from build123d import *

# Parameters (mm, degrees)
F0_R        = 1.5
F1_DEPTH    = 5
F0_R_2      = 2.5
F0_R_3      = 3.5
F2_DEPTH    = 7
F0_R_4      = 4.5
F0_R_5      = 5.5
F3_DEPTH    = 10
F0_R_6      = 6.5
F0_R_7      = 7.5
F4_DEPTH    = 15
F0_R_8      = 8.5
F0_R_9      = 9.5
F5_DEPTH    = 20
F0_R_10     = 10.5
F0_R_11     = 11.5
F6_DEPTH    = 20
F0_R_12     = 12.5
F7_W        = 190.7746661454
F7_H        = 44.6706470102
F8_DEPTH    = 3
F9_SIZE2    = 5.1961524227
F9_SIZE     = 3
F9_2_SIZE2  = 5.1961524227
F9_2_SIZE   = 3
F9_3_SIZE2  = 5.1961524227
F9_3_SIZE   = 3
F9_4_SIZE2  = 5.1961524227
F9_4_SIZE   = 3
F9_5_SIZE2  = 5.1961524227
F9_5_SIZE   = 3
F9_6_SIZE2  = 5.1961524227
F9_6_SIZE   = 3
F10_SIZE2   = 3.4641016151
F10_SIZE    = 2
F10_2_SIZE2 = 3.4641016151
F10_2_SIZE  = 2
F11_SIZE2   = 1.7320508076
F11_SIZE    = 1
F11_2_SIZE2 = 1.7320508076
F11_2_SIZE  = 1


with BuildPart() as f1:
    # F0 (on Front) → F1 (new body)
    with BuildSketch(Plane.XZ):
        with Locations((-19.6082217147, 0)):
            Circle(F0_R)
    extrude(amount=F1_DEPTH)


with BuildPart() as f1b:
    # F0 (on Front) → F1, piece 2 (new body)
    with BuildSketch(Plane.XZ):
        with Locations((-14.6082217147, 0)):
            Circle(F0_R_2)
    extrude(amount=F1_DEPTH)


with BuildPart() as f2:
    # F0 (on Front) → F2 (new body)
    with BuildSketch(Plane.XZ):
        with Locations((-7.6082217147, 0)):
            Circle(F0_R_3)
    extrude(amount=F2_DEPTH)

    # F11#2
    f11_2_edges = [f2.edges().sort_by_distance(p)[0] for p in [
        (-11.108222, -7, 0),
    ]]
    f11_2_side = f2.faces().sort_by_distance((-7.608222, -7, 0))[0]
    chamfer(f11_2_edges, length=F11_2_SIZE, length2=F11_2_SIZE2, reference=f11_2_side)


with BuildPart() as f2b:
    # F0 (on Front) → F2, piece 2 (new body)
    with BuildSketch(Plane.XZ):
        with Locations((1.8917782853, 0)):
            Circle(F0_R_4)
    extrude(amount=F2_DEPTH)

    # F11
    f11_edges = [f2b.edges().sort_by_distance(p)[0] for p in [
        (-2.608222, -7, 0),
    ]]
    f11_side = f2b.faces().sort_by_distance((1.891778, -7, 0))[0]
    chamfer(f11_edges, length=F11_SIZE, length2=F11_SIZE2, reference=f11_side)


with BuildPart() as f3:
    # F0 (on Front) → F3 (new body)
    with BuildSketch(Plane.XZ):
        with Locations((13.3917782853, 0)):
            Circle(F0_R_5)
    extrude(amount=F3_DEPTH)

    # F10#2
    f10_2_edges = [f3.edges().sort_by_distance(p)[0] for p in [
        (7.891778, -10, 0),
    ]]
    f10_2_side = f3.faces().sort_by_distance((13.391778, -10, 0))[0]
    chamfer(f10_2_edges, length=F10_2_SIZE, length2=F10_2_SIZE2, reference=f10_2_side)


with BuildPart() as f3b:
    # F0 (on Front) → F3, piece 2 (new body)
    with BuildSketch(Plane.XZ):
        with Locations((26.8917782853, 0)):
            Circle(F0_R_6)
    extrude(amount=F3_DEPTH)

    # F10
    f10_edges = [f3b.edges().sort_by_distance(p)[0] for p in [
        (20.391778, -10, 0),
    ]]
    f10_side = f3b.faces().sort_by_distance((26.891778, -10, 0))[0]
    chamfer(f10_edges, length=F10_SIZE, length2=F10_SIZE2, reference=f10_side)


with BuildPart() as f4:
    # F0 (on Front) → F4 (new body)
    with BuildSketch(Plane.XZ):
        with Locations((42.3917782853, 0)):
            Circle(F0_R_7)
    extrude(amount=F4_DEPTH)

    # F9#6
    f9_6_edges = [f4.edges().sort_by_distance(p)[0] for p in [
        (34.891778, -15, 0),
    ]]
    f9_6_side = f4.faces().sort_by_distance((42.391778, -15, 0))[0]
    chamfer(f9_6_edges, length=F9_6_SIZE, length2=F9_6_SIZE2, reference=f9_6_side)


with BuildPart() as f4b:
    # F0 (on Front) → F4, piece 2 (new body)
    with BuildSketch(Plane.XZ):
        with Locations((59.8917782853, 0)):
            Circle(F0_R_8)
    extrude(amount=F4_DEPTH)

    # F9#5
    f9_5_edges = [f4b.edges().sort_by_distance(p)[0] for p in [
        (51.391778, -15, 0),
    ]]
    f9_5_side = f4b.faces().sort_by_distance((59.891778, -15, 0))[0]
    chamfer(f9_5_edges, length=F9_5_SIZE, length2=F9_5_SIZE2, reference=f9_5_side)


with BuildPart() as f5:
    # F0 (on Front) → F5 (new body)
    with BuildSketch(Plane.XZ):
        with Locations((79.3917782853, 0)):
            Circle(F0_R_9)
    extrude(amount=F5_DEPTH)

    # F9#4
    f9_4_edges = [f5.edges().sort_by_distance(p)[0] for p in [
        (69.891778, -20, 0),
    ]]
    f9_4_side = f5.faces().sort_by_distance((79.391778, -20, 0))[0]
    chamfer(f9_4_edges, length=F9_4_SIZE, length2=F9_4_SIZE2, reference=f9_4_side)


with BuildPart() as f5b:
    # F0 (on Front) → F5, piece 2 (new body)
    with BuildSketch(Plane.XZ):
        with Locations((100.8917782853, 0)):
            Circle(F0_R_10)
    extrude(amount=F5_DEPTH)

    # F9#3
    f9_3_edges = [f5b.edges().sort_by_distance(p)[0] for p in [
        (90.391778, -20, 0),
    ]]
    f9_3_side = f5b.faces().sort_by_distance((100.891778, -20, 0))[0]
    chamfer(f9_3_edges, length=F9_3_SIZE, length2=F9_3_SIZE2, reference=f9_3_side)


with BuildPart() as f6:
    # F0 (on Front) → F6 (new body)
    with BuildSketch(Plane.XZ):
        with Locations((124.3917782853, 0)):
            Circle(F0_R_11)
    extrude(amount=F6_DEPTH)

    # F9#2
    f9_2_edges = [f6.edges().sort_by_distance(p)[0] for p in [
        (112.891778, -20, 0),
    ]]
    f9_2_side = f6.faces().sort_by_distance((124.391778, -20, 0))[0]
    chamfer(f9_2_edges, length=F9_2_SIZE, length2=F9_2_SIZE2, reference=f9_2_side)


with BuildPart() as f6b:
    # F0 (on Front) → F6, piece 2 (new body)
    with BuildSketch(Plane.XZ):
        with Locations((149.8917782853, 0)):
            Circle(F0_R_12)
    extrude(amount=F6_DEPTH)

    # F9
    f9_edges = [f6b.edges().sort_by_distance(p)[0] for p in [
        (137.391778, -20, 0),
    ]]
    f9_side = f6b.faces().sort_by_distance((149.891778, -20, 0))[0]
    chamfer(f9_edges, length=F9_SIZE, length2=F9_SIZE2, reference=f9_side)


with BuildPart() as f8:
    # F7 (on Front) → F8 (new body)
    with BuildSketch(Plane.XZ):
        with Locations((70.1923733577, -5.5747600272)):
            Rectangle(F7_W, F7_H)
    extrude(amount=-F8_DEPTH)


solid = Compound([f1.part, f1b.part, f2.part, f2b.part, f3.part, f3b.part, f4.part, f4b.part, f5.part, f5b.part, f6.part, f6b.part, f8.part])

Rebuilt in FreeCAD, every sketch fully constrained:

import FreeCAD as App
import Part
import Sketcher
from FreeCAD import Vector


def edges_at(feature, points):
    """Names of the edges that pass closest to the given points."""
    edges = feature.Shape.Edges
    near = lambda p: min(range(len(edges)), key=lambda i: edges[i].distToShape(Part.Vertex(*p))[0])
    return sorted({f"Edge{near(p) + 1}" for p in points})

doc = App.newDocument("Part")
params = doc.addObject("Spreadsheet::Sheet", "Params")
for row, (alias, value) in enumerate([
    ("sketch1_diameter", "3 mm"),
    ("pad1_length", "5 mm"),
    ("sketch2_diameter", "5 mm"),
    ("pad2_length", "5 mm"),
    ("sketch3_diameter", "7 mm"),
    ("pad3_length", "7 mm"),
    ("chamfer_size", "1 mm"),
    ("chamfer_size2", "1.732051 mm"),
    ("sketch4_diameter", "9 mm"),
    ("pad4_length", "7 mm"),
    ("chamfer2_size", "1 mm"),
    ("chamfer2_size2", "1.732051 mm"),
    ("sketch5_diameter", "11 mm"),
    ("pad5_length", "10 mm"),
    ("chamfer3_size", "2 mm"),
    ("chamfer3_size2", "3.464102 mm"),
    ("sketch6_diameter", "13 mm"),
    ("pad6_length", "10 mm"),
    ("chamfer4_size", "2 mm"),
    ("chamfer4_size2", "3.464102 mm"),
    ("sketch7_diameter", "15 mm"),
    ("pad7_length", "15 mm"),
    ("chamfer5_size", "3 mm"),
    ("chamfer5_size2", "5.196152 mm"),
    ("sketch8_diameter", "17 mm"),
    ("pad8_length", "15 mm"),
    ("chamfer6_size", "3 mm"),
    ("chamfer6_size2", "5.196152 mm"),
    ("sketch9_diameter", "19 mm"),
    ("pad9_length", "20 mm"),
    ("chamfer7_size", "3 mm"),
    ("chamfer7_size2", "5.196152 mm"),
    ("sketch10_diameter", "21 mm"),
    ("pad10_length", "20 mm"),
    ("chamfer8_size", "3 mm"),
    ("chamfer8_size2", "5.196152 mm"),
    ("sketch11_diameter", "23 mm"),
    ("pad11_length", "20 mm"),
    ("chamfer9_size", "3 mm"),
    ("chamfer9_size2", "5.196152 mm"),
    ("sketch12_diameter", "25 mm"),
    ("pad12_length", "20 mm"),
    ("chamfer10_size", "3 mm"),
    ("chamfer10_size2", "5.196152 mm"),
    ("pad13_length", "3 mm"),
], start=1):
    params.set(f"A{row}", alias)
    params.set(f"B{row}", "=" + value)
    params.setAlias(f"B{row}", alias)

body = doc.addObject("PartDesign::Body", "Body")

# Sketch on XZ plane
sketch1 = body.newObject("Sketcher::SketchObject", "Sketch")
sketch1.AttachmentSupport = (doc.getObject("XZ_Plane"), [""])
sketch1.MapMode = "FlatFace"
sketch1.addGeometry(Part.Circle(Vector(-19.608222, 0, 0), Vector(0, 0, 1), 1.5), False)
sketch1.addConstraint(Sketcher.Constraint("PointOnObject", 0, 3, -1))
sketch1.addConstraint(Sketcher.Constraint("Diameter", 0, 3.0))
sketch1.addConstraint(Sketcher.Constraint("DistanceX", 0, 3, -1, 1, 19.608222))
sketch1.setExpression("Constraints[1]", "Params.sketch1_diameter")
pad1 = body.newObject("PartDesign::Pad", "Pad")
pad1.Profile = sketch1
pad1.setExpression("Length", "Params.pad1_length")
body2 = doc.addObject("PartDesign::Body", "Body001")

# Sketch on XZ plane
sketch2 = body2.newObject("Sketcher::SketchObject", "Sketch001")
sketch2.AttachmentSupport = (doc.getObject("XZ_Plane001"), [""])
sketch2.MapMode = "FlatFace"
sketch2.addGeometry(Part.Circle(Vector(-14.608222, 0, 0), Vector(0, 0, 1), 2.5), False)
sketch2.addConstraint(Sketcher.Constraint("PointOnObject", 0, 3, -1))
sketch2.addConstraint(Sketcher.Constraint("Diameter", 0, 5.0))
sketch2.addConstraint(Sketcher.Constraint("DistanceX", 0, 3, -1, 1, 14.608222))
sketch2.setExpression("Constraints[1]", "Params.sketch2_diameter")
pad2 = body2.newObject("PartDesign::Pad", "Pad001")
pad2.Profile = sketch2
pad2.setExpression("Length", "Params.pad2_length")
body3 = doc.addObject("PartDesign::Body", "Body002")

# Sketch on XZ plane
sketch3 = body3.newObject("Sketcher::SketchObject", "Sketch002")
sketch3.AttachmentSupport = (doc.getObject("XZ_Plane002"), [""])
sketch3.MapMode = "FlatFace"
sketch3.addGeometry(Part.Circle(Vector(-7.608222, 0, 0), Vector(0, 0, 1), 3.5), False)
sketch3.addConstraint(Sketcher.Constraint("PointOnObject", 0, 3, -1))
sketch3.addConstraint(Sketcher.Constraint("Diameter", 0, 7.0))
sketch3.addConstraint(Sketcher.Constraint("DistanceX", 0, 3, -1, 1, 7.608222))
sketch3.setExpression("Constraints[1]", "Params.sketch3_diameter")
pad3 = body3.newObject("PartDesign::Pad", "Pad002")
pad3.Profile = sketch3
pad3.setExpression("Length", "Params.pad3_length")
doc.recompute()

chamfer = body3.newObject("PartDesign::Chamfer", "Chamfer")
chamfer.Base = (pad3, edges_at(pad3, [(-11.108, -7, 0)]))
chamfer.ChamferType = "Two distances"
chamfer.setExpression("Size", "Params.chamfer_size")
chamfer.setExpression("Size2", "Params.chamfer_size2")
chamfer.FlipDirection = True
body4 = doc.addObject("PartDesign::Body", "Body003")

# Sketch on XZ plane
sketch4 = body4.newObject("Sketcher::SketchObject", "Sketch003")
sketch4.AttachmentSupport = (doc.getObject("XZ_Plane003"), [""])
sketch4.MapMode = "FlatFace"
sketch4.addGeometry(Part.Circle(Vector(1.891778, 0, 0), Vector(0, 0, 1), 4.5), False)
sketch4.addConstraint(Sketcher.Constraint("PointOnObject", 0, 3, -1))
sketch4.addConstraint(Sketcher.Constraint("Diameter", 0, 9.0))
sketch4.addConstraint(Sketcher.Constraint("DistanceX", -1, 1, 0, 3, 1.891778))
sketch4.setExpression("Constraints[1]", "Params.sketch4_diameter")
pad4 = body4.newObject("PartDesign::Pad", "Pad003")
pad4.Profile = sketch4
pad4.setExpression("Length", "Params.pad4_length")
doc.recompute()

chamfer2 = body4.newObject("PartDesign::Chamfer", "Chamfer001")
chamfer2.Base = (pad4, edges_at(pad4, [(-2.608, -7, 0)]))
chamfer2.ChamferType = "Two distances"
chamfer2.setExpression("Size", "Params.chamfer2_size")
chamfer2.setExpression("Size2", "Params.chamfer2_size2")
chamfer2.FlipDirection = True
body5 = doc.addObject("PartDesign::Body", "Body004")

# Sketch on XZ plane
sketch5 = body5.newObject("Sketcher::SketchObject", "Sketch004")
sketch5.AttachmentSupport = (doc.getObject("XZ_Plane004"), [""])
sketch5.MapMode = "FlatFace"
sketch5.addGeometry(Part.Circle(Vector(13.391778, 0, 0), Vector(0, 0, 1), 5.5), False)
sketch5.addConstraint(Sketcher.Constraint("PointOnObject", 0, 3, -1))
sketch5.addConstraint(Sketcher.Constraint("Diameter", 0, 11.0))
sketch5.addConstraint(Sketcher.Constraint("DistanceX", -1, 1, 0, 3, 13.391778))
sketch5.setExpression("Constraints[1]", "Params.sketch5_diameter")
pad5 = body5.newObject("PartDesign::Pad", "Pad004")
pad5.Profile = sketch5
pad5.setExpression("Length", "Params.pad5_length")
doc.recompute()

chamfer3 = body5.newObject("PartDesign::Chamfer", "Chamfer002")
chamfer3.Base = (pad5, edges_at(pad5, [(7.892, -10, 0)]))
chamfer3.ChamferType = "Two distances"
chamfer3.setExpression("Size", "Params.chamfer3_size")
chamfer3.setExpression("Size2", "Params.chamfer3_size2")
chamfer3.FlipDirection = True
body6 = doc.addObject("PartDesign::Body", "Body005")

# Sketch on XZ plane
sketch6 = body6.newObject("Sketcher::SketchObject", "Sketch005")
sketch6.AttachmentSupport = (doc.getObject("XZ_Plane005"), [""])
sketch6.MapMode = "FlatFace"
sketch6.addGeometry(Part.Circle(Vector(26.891778, 0, 0), Vector(0, 0, 1), 6.5), False)
sketch6.addConstraint(Sketcher.Constraint("PointOnObject", 0, 3, -1))
sketch6.addConstraint(Sketcher.Constraint("Diameter", 0, 13.0))
sketch6.addConstraint(Sketcher.Constraint("DistanceX", -1, 1, 0, 3, 26.891778))
sketch6.setExpression("Constraints[1]", "Params.sketch6_diameter")
pad6 = body6.newObject("PartDesign::Pad", "Pad005")
pad6.Profile = sketch6
pad6.setExpression("Length", "Params.pad6_length")
doc.recompute()

chamfer4 = body6.newObject("PartDesign::Chamfer", "Chamfer003")
chamfer4.Base = (pad6, edges_at(pad6, [(20.392, -10, 0)]))
chamfer4.ChamferType = "Two distances"
chamfer4.setExpression("Size", "Params.chamfer4_size")
chamfer4.setExpression("Size2", "Params.chamfer4_size2")
chamfer4.FlipDirection = True
body7 = doc.addObject("PartDesign::Body", "Body006")

# Sketch on XZ plane
sketch7 = body7.newObject("Sketcher::SketchObject", "Sketch006")
sketch7.AttachmentSupport = (doc.getObject("XZ_Plane006"), [""])
sketch7.MapMode = "FlatFace"
sketch7.addGeometry(Part.Circle(Vector(42.391778, 0, 0), Vector(0, 0, 1), 7.5), False)
sketch7.addConstraint(Sketcher.Constraint("PointOnObject", 0, 3, -1))
sketch7.addConstraint(Sketcher.Constraint("Diameter", 0, 15.0))
sketch7.addConstraint(Sketcher.Constraint("DistanceX", -1, 1, 0, 3, 42.391778))
sketch7.setExpression("Constraints[1]", "Params.sketch7_diameter")
pad7 = body7.newObject("PartDesign::Pad", "Pad006")
pad7.Profile = sketch7
pad7.setExpression("Length", "Params.pad7_length")
doc.recompute()

chamfer5 = body7.newObject("PartDesign::Chamfer", "Chamfer004")
chamfer5.Base = (pad7, edges_at(pad7, [(34.892, -15, 0)]))
chamfer5.ChamferType = "Two distances"
chamfer5.setExpression("Size", "Params.chamfer5_size")
chamfer5.setExpression("Size2", "Params.chamfer5_size2")
chamfer5.FlipDirection = True
body8 = doc.addObject("PartDesign::Body", "Body007")

# Sketch on XZ plane
sketch8 = body8.newObject("Sketcher::SketchObject", "Sketch007")
sketch8.AttachmentSupport = (doc.getObject("XZ_Plane007"), [""])
sketch8.MapMode = "FlatFace"
sketch8.addGeometry(Part.Circle(Vector(59.891778, 0, 0), Vector(0, 0, 1), 8.5), False)
sketch8.addConstraint(Sketcher.Constraint("PointOnObject", 0, 3, -1))
sketch8.addConstraint(Sketcher.Constraint("Diameter", 0, 17.0))
sketch8.addConstraint(Sketcher.Constraint("DistanceX", -1, 1, 0, 3, 59.891778))
sketch8.setExpression("Constraints[1]", "Params.sketch8_diameter")
pad8 = body8.newObject("PartDesign::Pad", "Pad007")
pad8.Profile = sketch8
pad8.setExpression("Length", "Params.pad8_length")
doc.recompute()

chamfer6 = body8.newObject("PartDesign::Chamfer", "Chamfer005")
chamfer6.Base = (pad8, edges_at(pad8, [(51.392, -15, 0)]))
chamfer6.ChamferType = "Two distances"
chamfer6.setExpression("Size", "Params.chamfer6_size")
chamfer6.setExpression("Size2", "Params.chamfer6_size2")
chamfer6.FlipDirection = True
body9 = doc.addObject("PartDesign::Body", "Body008")

# Sketch on XZ plane
sketch9 = body9.newObject("Sketcher::SketchObject", "Sketch008")
sketch9.AttachmentSupport = (doc.getObject("XZ_Plane008"), [""])
sketch9.MapMode = "FlatFace"
sketch9.addGeometry(Part.Circle(Vector(79.391778, 0, 0), Vector(0, 0, 1), 9.5), False)
sketch9.addConstraint(Sketcher.Constraint("PointOnObject", 0, 3, -1))
sketch9.addConstraint(Sketcher.Constraint("Diameter", 0, 19.0))
sketch9.addConstraint(Sketcher.Constraint("DistanceX", -1, 1, 0, 3, 79.391778))
sketch9.setExpression("Constraints[1]", "Params.sketch9_diameter")
pad9 = body9.newObject("PartDesign::Pad", "Pad008")
pad9.Profile = sketch9
pad9.setExpression("Length", "Params.pad9_length")
doc.recompute()

chamfer7 = body9.newObject("PartDesign::Chamfer", "Chamfer006")
chamfer7.Base = (pad9, edges_at(pad9, [(69.892, -20, 0)]))
chamfer7.ChamferType = "Two distances"
chamfer7.setExpression("Size", "Params.chamfer7_size")
chamfer7.setExpression("Size2", "Params.chamfer7_size2")
chamfer7.FlipDirection = True
body10 = doc.addObject("PartDesign::Body", "Body009")

# Sketch on XZ plane
sketch10 = body10.newObject("Sketcher::SketchObject", "Sketch009")
sketch10.AttachmentSupport = (doc.getObject("XZ_Plane009"), [""])
sketch10.MapMode = "FlatFace"
sketch10.addGeometry(Part.Circle(Vector(100.891778, 0, 0), Vector(0, 0, 1), 10.5), False)
sketch10.addConstraint(Sketcher.Constraint("PointOnObject", 0, 3, -1))
sketch10.addConstraint(Sketcher.Constraint("Diameter", 0, 21.0))
sketch10.addConstraint(Sketcher.Constraint("DistanceX", -1, 1, 0, 3, 100.891778))
sketch10.setExpression("Constraints[1]", "Params.sketch10_diameter")
pad10 = body10.newObject("PartDesign::Pad", "Pad009")
pad10.Profile = sketch10
pad10.setExpression("Length", "Params.pad10_length")
doc.recompute()

chamfer8 = body10.newObject("PartDesign::Chamfer", "Chamfer007")
chamfer8.Base = (pad10, edges_at(pad10, [(90.392, -20, 0)]))
chamfer8.ChamferType = "Two distances"
chamfer8.setExpression("Size", "Params.chamfer8_size")
chamfer8.setExpression("Size2", "Params.chamfer8_size2")
chamfer8.FlipDirection = True
body11 = doc.addObject("PartDesign::Body", "Body010")

# Sketch on XZ plane
sketch11 = body11.newObject("Sketcher::SketchObject", "Sketch010")
sketch11.AttachmentSupport = (doc.getObject("XZ_Plane010"), [""])
sketch11.MapMode = "FlatFace"
sketch11.addGeometry(Part.Circle(Vector(124.391778, 0, 0), Vector(0, 0, 1), 11.5), False)
sketch11.addConstraint(Sketcher.Constraint("PointOnObject", 0, 3, -1))
sketch11.addConstraint(Sketcher.Constraint("Diameter", 0, 23.0))
sketch11.addConstraint(Sketcher.Constraint("DistanceX", -1, 1, 0, 3, 124.391778))
sketch11.setExpression("Constraints[1]", "Params.sketch11_diameter")
pad11 = body11.newObject("PartDesign::Pad", "Pad010")
pad11.Profile = sketch11
pad11.setExpression("Length", "Params.pad11_length")
doc.recompute()

chamfer9 = body11.newObject("PartDesign::Chamfer", "Chamfer008")
chamfer9.Base = (pad11, edges_at(pad11, [(112.892, -20, 0)]))
chamfer9.ChamferType = "Two distances"
chamfer9.setExpression("Size", "Params.chamfer9_size")
chamfer9.setExpression("Size2", "Params.chamfer9_size2")
chamfer9.FlipDirection = True
body12 = doc.addObject("PartDesign::Body", "Body011")

# Sketch on XZ plane
sketch12 = body12.newObject("Sketcher::SketchObject", "Sketch011")
sketch12.AttachmentSupport = (doc.getObject("XZ_Plane011"), [""])
sketch12.MapMode = "FlatFace"
sketch12.addGeometry(Part.Circle(Vector(149.891778, 0, 0), Vector(0, 0, 1), 12.5), False)
sketch12.addConstraint(Sketcher.Constraint("PointOnObject", 0, 3, -1))
sketch12.addConstraint(Sketcher.Constraint("Diameter", 0, 25.0))
sketch12.addConstraint(Sketcher.Constraint("DistanceX", -1, 1, 0, 3, 149.891778))
sketch12.setExpression("Constraints[1]", "Params.sketch12_diameter")
pad12 = body12.newObject("PartDesign::Pad", "Pad011")
pad12.Profile = sketch12
pad12.setExpression("Length", "Params.pad12_length")
doc.recompute()

chamfer10 = body12.newObject("PartDesign::Chamfer", "Chamfer009")
chamfer10.Base = (pad12, edges_at(pad12, [(137.392, -20, 0)]))
chamfer10.ChamferType = "Two distances"
chamfer10.setExpression("Size", "Params.chamfer10_size")
chamfer10.setExpression("Size2", "Params.chamfer10_size2")
chamfer10.FlipDirection = True
body13 = doc.addObject("PartDesign::Body", "Body012")

# Sketch on XZ plane
sketch13 = body13.newObject("Sketcher::SketchObject", "Sketch012")
sketch13.AttachmentSupport = (doc.getObject("XZ_Plane012"), [""])
sketch13.MapMode = "FlatFace"
sketch13.addGeometry(Part.LineSegment(Vector(-25.19496, 16.760563, 0), Vector(-25.19496, -27.910084, 0)), False)
sketch13.addGeometry(Part.LineSegment(Vector(-25.19496, -27.910084, 0), Vector(165.579706, -27.910084, 0)), False)
sketch13.addGeometry(Part.LineSegment(Vector(165.579706, -27.910084, 0), Vector(165.579706, 16.760563, 0)), False)
sketch13.addGeometry(Part.LineSegment(Vector(165.579706, 16.760563, 0), Vector(-25.19496, 16.760563, 0)), False)
sketch13.addConstraint(Sketcher.Constraint("Coincident", 0, 2, 1, 1))
sketch13.addConstraint(Sketcher.Constraint("Coincident", 1, 2, 2, 1))
sketch13.addConstraint(Sketcher.Constraint("Coincident", 2, 2, 3, 1))
sketch13.addConstraint(Sketcher.Constraint("Coincident", 3, 2, 0, 1))
sketch13.addConstraint(Sketcher.Constraint("Vertical", 0))
sketch13.addConstraint(Sketcher.Constraint("Horizontal", 1))
sketch13.addConstraint(Sketcher.Constraint("Vertical", 2))
sketch13.addConstraint(Sketcher.Constraint("Horizontal", 3))
sketch13.addConstraint(Sketcher.Constraint("DistanceX", 1, 1, 1, 2, 190.774666))
sketch13.addConstraint(Sketcher.Constraint("DistanceY", 0, 2, 0, 1, 44.670647))
sketch13.addConstraint(Sketcher.Constraint("DistanceX", 0, 2, -1, 1, 25.19496))
sketch13.addConstraint(Sketcher.Constraint("DistanceY", 0, 2, -1, 1, 27.910084))
pad13 = body13.newObject("PartDesign::Pad", "Pad012")
pad13.Profile = sketch13
pad13.setExpression("Length", "Params.pad13_length")
pad13.Reversed = True

doc.recompute()
